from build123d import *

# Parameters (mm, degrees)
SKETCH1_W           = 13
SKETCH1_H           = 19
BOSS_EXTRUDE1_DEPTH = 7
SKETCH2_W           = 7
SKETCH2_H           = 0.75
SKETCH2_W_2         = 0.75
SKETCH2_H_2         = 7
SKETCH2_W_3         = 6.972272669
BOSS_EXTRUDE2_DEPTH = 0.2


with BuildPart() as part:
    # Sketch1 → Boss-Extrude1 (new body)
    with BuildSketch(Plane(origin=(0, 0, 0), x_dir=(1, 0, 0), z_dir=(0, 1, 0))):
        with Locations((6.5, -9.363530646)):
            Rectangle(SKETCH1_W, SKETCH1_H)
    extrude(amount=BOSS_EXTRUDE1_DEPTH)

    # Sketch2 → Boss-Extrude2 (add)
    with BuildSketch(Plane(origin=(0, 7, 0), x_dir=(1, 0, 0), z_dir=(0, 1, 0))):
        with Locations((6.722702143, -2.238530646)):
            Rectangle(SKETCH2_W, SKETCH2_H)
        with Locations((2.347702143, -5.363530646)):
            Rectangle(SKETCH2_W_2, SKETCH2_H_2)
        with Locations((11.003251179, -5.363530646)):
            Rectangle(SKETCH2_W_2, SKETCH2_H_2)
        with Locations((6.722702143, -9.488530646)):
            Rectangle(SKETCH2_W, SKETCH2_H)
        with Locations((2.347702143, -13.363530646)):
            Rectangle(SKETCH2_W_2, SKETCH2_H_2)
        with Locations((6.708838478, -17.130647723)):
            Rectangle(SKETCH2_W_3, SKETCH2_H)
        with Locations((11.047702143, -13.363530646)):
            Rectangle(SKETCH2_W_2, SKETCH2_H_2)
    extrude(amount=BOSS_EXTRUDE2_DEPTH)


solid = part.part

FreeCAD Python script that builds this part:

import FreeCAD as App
import Part
import Sketcher
from FreeCAD import Vector
Q = App.Units.Quantity

doc = App.newDocument("Part")
body = doc.addObject("PartDesign::Body", "Body")

# Sketch on XZ plane
sketch1 = doc.addObject("Sketcher::SketchObject", "Sketch")
body.addObject(sketch1)
sketch1.AttachmentSupport = (doc.XZ_Plane, [""])
sketch1.MapMode = "FlatFace"
sketch1.addGeometry([
    Part.LineSegment(Vector(0, 0, 0), Vector(0, 19, 0)),
    Part.LineSegment(Vector(0, 19, 0), Vector(13, 19, 0)),
    Part.LineSegment(Vector(13, 19, 0), Vector(13, 0, 0)),
    Part.LineSegment(Vector(13, 0, 0), Vector(0, 0, 0)),
], False)
sketch1.addConstraint([
    Sketcher.Constraint("Coincident", 0, 2, 1, 1),
    Sketcher.Constraint("Coincident", 1, 2, 2, 1),
    Sketcher.Constraint("Coincident", 2, 2, 3, 1),
    Sketcher.Constraint("Coincident", 3, 2, 0, 1),
    Sketcher.Constraint("Vertical", 0),
    Sketcher.Constraint("Horizontal", 1),
    Sketcher.Constraint("Vertical", 2),
    Sketcher.Constraint("Horizontal", 3),
    Sketcher.Constraint("PointOnObject", 0, 2, -2),
    Sketcher.Constraint("DistanceX", 1, 1, 1, 2, Q("13 mm")),
    Sketcher.Constraint("DistanceY", 0, 1, 0, 2, Q("19 mm")),
    Sketcher.Constraint("DistanceY", -1, 1, 0, 2, Q("18.863531 mm")),
])
pad1 = doc.addObject("PartDesign::Pad", "Pad")
body.addObject(pad1)
pad1.Profile = sketch1
pad1.Length = 7
pad1.Reversed = True

# Sketch on XZ plane
sketch2 = doc.addObject("Sketcher::SketchObject", "Sketch001")
body.addObject(sketch2)
sketch2.AttachmentSupport = (doc.XZ_Plane, [""])
sketch2.MapMode = "FlatFace"
sketch2.AttachmentOffset = App.Placement(Vector(0, 0, -7), App.Rotation())
sketch2.addGeometry([
    Part.LineSegment(Vector(3.2, 1.9, 0), Vector(3.2, 2.6, 0)),  # 0
    Part.LineSegment(Vector(3.2, 2.6, 0), Vector(10.2, 2.6, 0)),  # 1
    Part.LineSegment(Vector(10.2, 2.6, 0), Vector(10.2, 1.9, 0)),  # 2
    Part.LineSegment(Vector(10.2, 1.9, 0), Vector(3.2, 1.9, 0)),  # 3
    Part.LineSegment(Vector(2, 1.9, 0), Vector(2, 8.9, 0)),  # 4
    Part.LineSegment(Vector(2, 8.9, 0), Vector(2.7, 8.9, 0)),  # 5
    Part.LineSegment(Vector(2.7, 8.9, 0), Vector(2.7, 1.9, 0)),  # 6
    Part.LineSegment(Vector(2.7, 1.9, 0), Vector(2, 1.9, 0)),  # 7
    Part.LineSegment(Vector(10.6, 1.9, 0), Vector(10.6, 8.9, 0)),  # 8
    Part.LineSegment(Vector(10.6, 8.9, 0), Vector(11.4, 8.9, 0)),  # 9
    Part.LineSegment(Vector(11.4, 8.9, 0), Vector(11.4, 1.9, 0)),  # 10
    Part.LineSegment(Vector(11.4, 1.9, 0), Vector(10.6, 1.9, 0)),  # 11
    Part.LineSegment(Vector(3.2, 9.1, 0), Vector(3.2, 9.9, 0)),  # 12
    Part.LineSegment(Vector(3.2, 9.9, 0), Vector(10.2, 9.9, 0)),  # 13
    Part.LineSegment(Vector(10.2, 9.9, 0), Vector(10.2, 9.1, 0)),  # 14
    Part.LineSegment(Vector(10.2, 9.1, 0), Vector(3.2, 9.1, 0)),  # 15
    Part.LineSegment(Vector(2, 9.9, 0), Vector(2, 16.9, 0)),  # 16
    Part.LineSegment(Vector(2, 16.9, 0), Vector(2.7, 16.9, 0)),  # 17
    Part.LineSegment(Vector(2.7, 16.9, 0), Vector(2.7, 9.9, 0)),  # 18
    Part.LineSegment(Vector(2.7, 9.9, 0), Vector(2, 9.9, 0)),  # 19
    Part.LineSegment(Vector(3.2, 16.8, 0), Vector(3.2, 17.5, 0)),  # 20
    Part.LineSegment(Vector(3.2, 17.5, 0), Vector(10.2, 17.5, 0)),  # 21
    Part.LineSegment(Vector(10.2, 17.5, 0), Vector(10.2, 16.8, 0)),  # 22
    Part.LineSegment(Vector(10.2, 16.8, 0), Vector(3.2, 16.8, 0)),  # 23
    Part.LineSegment(Vector(10.7, 9.9, 0), Vector(10.7, 16.9, 0)),  # 24
    Part.LineSegment(Vector(10.7, 16.9, 0), Vector(11.4, 16.9, 0)),  # 25
    Part.LineSegment(Vector(11.4, 16.9, 0), Vector(11.4, 9.9, 0)),  # 26
    Part.LineSegment(Vector(11.4, 9.9, 0), Vector(10.7, 9.9, 0)),  # 27
], False)
sketch2.addConstraint([
    Sketcher.Constraint("Coincident", 0, 2, 1, 1),
    Sketcher.Constraint("Coincident", 1, 2, 2, 1),
    Sketcher.Constraint("Coincident", 2, 2, 3, 1),
    Sketcher.Constraint("Coincident", 3, 2, 0, 1),
    Sketcher.Constraint("Coincident", 4, 2, 5, 1),
    Sketcher.Constraint("Coincident", 5, 2, 6, 1),
    Sketcher.Constraint("Coincident", 6, 2, 7, 1),
    Sketcher.Constraint("Coincident", 7, 2, 4, 1),
    Sketcher.Constraint("Coincident", 8, 2, 9, 1),
    Sketcher.Constraint("Coincident", 9, 2, 10, 1),
    Sketcher.Constraint("Coincident", 10, 2, 11, 1),
    Sketcher.Constraint("Coincident", 11, 2, 8, 1),
    Sketcher.Constraint("Coincident", 12, 2, 13, 1),
    Sketcher.Constraint("Coincident", 13, 2, 14, 1),
    Sketcher.Constraint("Coincident", 14, 2, 15, 1),
    Sketcher.Constraint("Coincident", 15, 2, 12, 1),
    Sketcher.Constraint("Coincident", 16, 2, 17, 1),
    Sketcher.Constraint("Coincident", 17, 2, 18, 1),
    Sketcher.Constraint("Coincident", 18, 2, 19, 1),
    Sketcher.Constraint("Coincident", 19, 2, 16, 1),
    Sketcher.Constraint("Coincident", 20, 2, 21, 1),
    Sketcher.Constraint("Coincident", 21, 2, 22, 1),
    Sketcher.Constraint("Coincident", 22, 2, 23, 1),
    Sketcher.Constraint("Coincident", 23, 2, 20, 1),
    Sketcher.Constraint("Coincident", 24, 2, 25, 1),
    Sketcher.Constraint("Coincident", 25, 2, 26, 1),
    Sketcher.Constraint("Coincident", 26, 2, 27, 1),
    Sketcher.Constraint("Coincident", 27, 2, 24, 1),
    Sketcher.Constraint("Vertical", 0),
    Sketcher.Constraint("Horizontal", 1),
    Sketcher.Constraint("Vertical", 2),
    Sketcher.Constraint("Horizontal", 3),
    Sketcher.Constraint("Vertical", 4),
    Sketcher.Constraint("Horizontal", 5),
    Sketcher.Constraint("Vertical", 6),
    Sketcher.Constraint("Horizontal", 7),
    Sketcher.Constraint("Vertical", 8),
    Sketcher.Constraint("Horizontal", 9),
    Sketcher.Constraint("Vertical", 10),
    Sketcher.Constraint("Horizontal", 11),
    Sketcher.Constraint("Vertical", 12),
    Sketcher.Constraint("Horizontal", 13),
    Sketcher.Constraint("Vertical", 14),
    Sketcher.Constraint("Horizontal", 15),
    Sketcher.Constraint("Vertical", 16),
    Sketcher.Constraint("Horizontal", 17),
    Sketcher.Constraint("Vertical", 18),
    Sketcher.Constraint("Horizontal", 19),
    Sketcher.Constraint("Vertical", 20),
    Sketcher.Constraint("Horizontal", 21),
    Sketcher.Constraint("Vertical", 22),
    Sketcher.Constraint("Horizontal", 23),
    Sketcher.Constraint("Vertical", 24),
    Sketcher.Constraint("Horizontal", 25),
    Sketcher.Constraint("Vertical", 26),
    Sketcher.Constraint("Horizontal", 27),
    Sketcher.Constraint("Horizontal", 3, 2, 6, 2),
    Sketcher.Constraint("Horizontal", 5, 2, 8, 2),
    Sketcher.Constraint("Horizontal", 7, 2, 10, 2),
    Sketcher.Constraint("Horizontal", 13, 2, 18, 2),
    Sketcher.Constraint("Horizontal", 17, 2, 24, 2),
    Sketcher.Constraint("Horizontal", 19, 2, 26, 2),
    Sketcher.Constraint("Vertical", 3, 2, 12, 2),
    Sketcher.Constraint("Vertical", 2, 2, 13, 2),
    Sketcher.Constraint("Vertical", 7, 2, 16, 2),
    Sketcher.Constraint("Vertical", 6, 2, 17, 2),
    Sketcher.Constraint("Vertical", 15, 2, 20, 2),
    Sketcher.Constraint("Equal", 7, 9),
    Sketcher.Constraint("Equal", 19, 25),
    Sketcher.Constraint("Equal", 27, 0),
    Sketcher.Constraint("Equal", 15, 4),
    Sketcher.Constraint("Equal", 2, 12),
    Sketcher.Constraint("Equal", 10, 16),
    Sketcher.Constraint("Equal", 14, 20),
    Sketcher.Constraint("DistanceX", 1, 1, 1, 2, Q("7 mm")),
    Sketcher.Constraint("DistanceY", 5, 2, 12, 2, Q("1 mm")),
    Sketcher.Constraint("DistanceX", 5, 1, 5, 2, Q("0.75 mm")),
    Sketcher.Constraint("DistanceX", 5, 2, 0, 2, Q("0.5 mm")),
    Sketcher.Constraint("DistanceX", 13, 2, 25, 2, Q("1.2 mm")),
    Sketcher.Constraint("DistanceX", 21, 1, 21, 2, Q("6.972273 mm")),
    Sketcher.Constraint("DistanceY", -1, 1, 0, 2, Q("2.613531 mm")),
    Sketcher.Constraint("DistanceX", -1, 1, 8, 2, Q("10.628251 mm")),
    Sketcher.Constraint("DistanceX", 1, 2, 8, 2, Q("0.405549 mm")),
    Sketcher.Constraint("DistanceY", -1, 1, 20, 2, Q("17.505648 mm")),
])
pad2 = doc.addObject("PartDesign::Pad", "Pad001")
body.addObject(pad2)
pad2.Profile = sketch2
pad2.Length = 0.2
pad2.Reversed = True

doc.recompute()
